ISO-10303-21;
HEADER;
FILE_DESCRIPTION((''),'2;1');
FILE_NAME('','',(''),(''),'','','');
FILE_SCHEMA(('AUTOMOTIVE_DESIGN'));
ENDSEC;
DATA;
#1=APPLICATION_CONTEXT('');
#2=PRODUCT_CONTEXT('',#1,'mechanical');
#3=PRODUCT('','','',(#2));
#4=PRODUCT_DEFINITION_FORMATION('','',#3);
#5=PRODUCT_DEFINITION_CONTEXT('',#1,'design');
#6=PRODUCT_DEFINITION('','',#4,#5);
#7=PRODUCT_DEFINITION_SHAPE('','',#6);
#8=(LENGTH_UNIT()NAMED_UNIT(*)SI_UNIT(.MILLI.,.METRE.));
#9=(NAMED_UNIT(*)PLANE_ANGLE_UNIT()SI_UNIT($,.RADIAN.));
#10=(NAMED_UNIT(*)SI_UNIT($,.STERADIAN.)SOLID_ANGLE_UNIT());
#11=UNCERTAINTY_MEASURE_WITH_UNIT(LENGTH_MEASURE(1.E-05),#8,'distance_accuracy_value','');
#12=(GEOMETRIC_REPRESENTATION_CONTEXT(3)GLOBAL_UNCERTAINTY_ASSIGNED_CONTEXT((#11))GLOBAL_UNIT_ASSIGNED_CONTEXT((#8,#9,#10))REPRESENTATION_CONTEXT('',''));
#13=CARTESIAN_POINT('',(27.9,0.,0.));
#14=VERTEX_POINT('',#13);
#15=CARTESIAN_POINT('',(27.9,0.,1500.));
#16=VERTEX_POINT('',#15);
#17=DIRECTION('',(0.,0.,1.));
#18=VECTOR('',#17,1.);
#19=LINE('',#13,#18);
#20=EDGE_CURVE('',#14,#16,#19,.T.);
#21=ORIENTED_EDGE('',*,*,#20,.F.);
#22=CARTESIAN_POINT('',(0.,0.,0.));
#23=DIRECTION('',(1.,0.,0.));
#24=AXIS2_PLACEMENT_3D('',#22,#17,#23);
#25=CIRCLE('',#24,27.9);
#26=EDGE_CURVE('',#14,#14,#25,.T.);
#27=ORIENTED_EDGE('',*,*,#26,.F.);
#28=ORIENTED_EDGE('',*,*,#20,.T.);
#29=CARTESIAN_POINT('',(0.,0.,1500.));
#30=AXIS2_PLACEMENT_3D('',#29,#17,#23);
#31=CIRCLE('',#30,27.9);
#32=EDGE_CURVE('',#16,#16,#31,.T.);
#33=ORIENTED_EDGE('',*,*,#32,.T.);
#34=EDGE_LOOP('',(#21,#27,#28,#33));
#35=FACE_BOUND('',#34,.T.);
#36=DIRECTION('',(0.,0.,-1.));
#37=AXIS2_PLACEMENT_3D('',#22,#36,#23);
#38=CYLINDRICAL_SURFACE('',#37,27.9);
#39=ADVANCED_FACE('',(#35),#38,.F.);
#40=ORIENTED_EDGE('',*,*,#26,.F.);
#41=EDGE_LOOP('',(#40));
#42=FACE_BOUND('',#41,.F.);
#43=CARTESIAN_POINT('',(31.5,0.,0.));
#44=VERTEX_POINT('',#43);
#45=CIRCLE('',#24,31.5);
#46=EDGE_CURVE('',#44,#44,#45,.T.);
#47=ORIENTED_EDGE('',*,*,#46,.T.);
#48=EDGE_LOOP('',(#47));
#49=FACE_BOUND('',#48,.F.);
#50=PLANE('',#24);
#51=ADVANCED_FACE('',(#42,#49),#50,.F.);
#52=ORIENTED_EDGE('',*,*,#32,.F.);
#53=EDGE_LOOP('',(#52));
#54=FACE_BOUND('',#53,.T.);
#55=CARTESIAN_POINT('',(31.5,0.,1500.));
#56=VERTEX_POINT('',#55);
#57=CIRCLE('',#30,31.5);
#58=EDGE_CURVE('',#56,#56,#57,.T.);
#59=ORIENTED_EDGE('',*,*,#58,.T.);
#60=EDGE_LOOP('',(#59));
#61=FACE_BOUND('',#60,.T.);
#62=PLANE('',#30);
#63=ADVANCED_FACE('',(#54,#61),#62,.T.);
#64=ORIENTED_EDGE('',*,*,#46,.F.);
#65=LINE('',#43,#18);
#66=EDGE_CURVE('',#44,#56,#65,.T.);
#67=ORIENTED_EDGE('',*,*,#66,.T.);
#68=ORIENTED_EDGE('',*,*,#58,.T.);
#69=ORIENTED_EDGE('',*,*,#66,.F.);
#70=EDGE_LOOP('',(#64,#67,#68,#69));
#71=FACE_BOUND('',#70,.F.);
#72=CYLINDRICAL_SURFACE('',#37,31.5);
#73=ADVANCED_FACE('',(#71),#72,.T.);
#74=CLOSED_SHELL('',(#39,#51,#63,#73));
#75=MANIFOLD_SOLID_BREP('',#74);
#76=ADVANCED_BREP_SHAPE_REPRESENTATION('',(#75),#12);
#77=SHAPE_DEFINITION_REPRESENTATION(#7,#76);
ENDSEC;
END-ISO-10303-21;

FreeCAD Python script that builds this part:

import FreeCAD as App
import Part
import Sketcher
from FreeCAD import Vector
Q = App.Units.Quantity

doc = App.newDocument("Part")
body = doc.addObject("PartDesign::Body", "Body")

# Sketch on XY plane
sketch1 = doc.addObject("Sketcher::SketchObject", "Sketch")
body.addObject(sketch1)
sketch1.AttachmentSupport = (doc.XY_Plane, [""])
sketch1.MapMode = "FlatFace"
sketch1.addGeometry([
    Part.Circle(Vector(0, 0, 0), Vector(0, 0, 1), 32),
    Part.Circle(Vector(0, 0, 0), Vector(0, 0, 1), 28),
], False)
sketch1.addConstraint([
    Sketcher.Constraint("Coincident", 0, 3, -1, 1),
    Sketcher.Constraint("Coincident", 1, 3, -1, 1),
    Sketcher.Constraint("Diameter", 0, Q("63 mm")),
    Sketcher.Constraint("Diameter", 1, Q("55.8 mm")),
])
pad1 = doc.addObject("PartDesign::Pad", "Pad")
body.addObject(pad1)
pad1.Profile = sketch1
pad1.Length = 1500

doc.recompute()
